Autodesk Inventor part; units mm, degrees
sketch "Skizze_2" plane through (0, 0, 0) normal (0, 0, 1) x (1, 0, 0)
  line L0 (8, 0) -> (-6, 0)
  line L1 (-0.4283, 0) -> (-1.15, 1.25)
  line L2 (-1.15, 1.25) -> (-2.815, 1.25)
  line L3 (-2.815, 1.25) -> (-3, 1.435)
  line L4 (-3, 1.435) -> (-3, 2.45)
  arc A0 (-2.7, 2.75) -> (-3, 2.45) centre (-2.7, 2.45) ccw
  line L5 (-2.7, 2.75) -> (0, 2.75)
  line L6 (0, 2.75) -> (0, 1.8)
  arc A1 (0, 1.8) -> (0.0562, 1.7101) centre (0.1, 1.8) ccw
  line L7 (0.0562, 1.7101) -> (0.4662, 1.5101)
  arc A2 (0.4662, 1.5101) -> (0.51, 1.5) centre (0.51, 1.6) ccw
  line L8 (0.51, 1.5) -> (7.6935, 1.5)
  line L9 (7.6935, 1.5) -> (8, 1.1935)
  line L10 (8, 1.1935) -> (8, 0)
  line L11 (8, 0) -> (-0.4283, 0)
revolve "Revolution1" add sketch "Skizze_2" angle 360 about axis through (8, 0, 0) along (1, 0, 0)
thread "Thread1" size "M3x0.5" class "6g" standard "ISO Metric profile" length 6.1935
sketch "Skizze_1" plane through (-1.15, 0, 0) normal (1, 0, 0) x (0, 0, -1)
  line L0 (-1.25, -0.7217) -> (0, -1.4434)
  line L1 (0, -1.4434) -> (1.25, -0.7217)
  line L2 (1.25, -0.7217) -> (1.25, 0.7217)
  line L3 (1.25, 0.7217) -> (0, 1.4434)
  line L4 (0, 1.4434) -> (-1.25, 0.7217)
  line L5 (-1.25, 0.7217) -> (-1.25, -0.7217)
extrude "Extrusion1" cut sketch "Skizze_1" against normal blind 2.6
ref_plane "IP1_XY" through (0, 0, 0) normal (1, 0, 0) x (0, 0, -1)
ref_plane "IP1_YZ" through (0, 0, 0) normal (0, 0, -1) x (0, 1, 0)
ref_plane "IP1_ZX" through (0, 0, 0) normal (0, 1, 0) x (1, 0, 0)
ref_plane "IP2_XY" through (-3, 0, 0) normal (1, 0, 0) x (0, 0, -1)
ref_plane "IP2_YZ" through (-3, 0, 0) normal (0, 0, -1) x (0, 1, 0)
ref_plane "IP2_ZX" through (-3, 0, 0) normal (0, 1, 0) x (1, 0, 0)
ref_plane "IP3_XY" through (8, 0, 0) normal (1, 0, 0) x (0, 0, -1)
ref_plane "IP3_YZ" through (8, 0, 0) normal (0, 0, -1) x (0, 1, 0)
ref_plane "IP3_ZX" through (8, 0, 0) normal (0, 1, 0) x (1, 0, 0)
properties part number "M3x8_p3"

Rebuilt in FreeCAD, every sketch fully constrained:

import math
import FreeCAD as App
import Part
import Sketcher

V = App.Vector
Q = App.Units.Quantity

doc = App.newDocument("Part")
body = doc.addObject("PartDesign::Body", "Body")

sketch1 = body.newObject("Sketcher::SketchObject", "Sketch")
sketch1.AttachmentSupport = (doc.getObject("XY_Plane"), [""])
sketch1.MapMode = "FlatFace"
sketch1.addGeometry([
    Part.LineSegment(V(-0.4283, 0, 0), V(8, 0, 0)),
    Part.LineSegment(V(8, 0, 0), V(8, 1.1935, 0)),
    Part.LineSegment(V(8, 1.1935, 0), V(7.6935, 1.5, 0)),
    Part.LineSegment(V(7.6935, 1.5, 0), V(0.51, 1.5, 0)),
    Part.ArcOfCircle(Part.Circle(V(0.51, 1.6, 0), V(0, 0, 1), 0.100002), math.radians(-115.975715), math.radians(-90)),
    Part.LineSegment(V(0.4662, 1.5101, 0), V(0.0562, 1.7101, 0)),
    Part.ArcOfCircle(Part.Circle(V(0.1, 1.8, 0), V(0, 0, 1), 0.1), math.radians(180), math.radians(244.024285)),
    Part.LineSegment(V(0, 1.8, 0), V(0, 2.75, 0)),
    Part.LineSegment(V(0, 2.75, 0), V(-2.7, 2.75, 0)),
    Part.ArcOfCircle(Part.Circle(V(-2.7, 2.45, 0), V(0, 0, 1), 0.3), math.radians(90), math.radians(180)),
    Part.LineSegment(V(-3, 2.45, 0), V(-3, 1.435, 0)),
    Part.LineSegment(V(-3, 1.435, 0), V(-2.815, 1.25, 0)),
    Part.LineSegment(V(-2.815, 1.25, 0), V(-1.15, 1.25, 0)),
    Part.LineSegment(V(-1.15, 1.25, 0), V(-0.4283, 0, 0)),
], False)
sketch1.addConstraint([
    Sketcher.Constraint("Coincident", 0, 2, 1, 1),
    Sketcher.Constraint("Coincident", 1, 2, 2, 1),
    Sketcher.Constraint("Coincident", 2, 2, 3, 1),
    Sketcher.Constraint("Tangent", 3, 2, 4, 2),
    Sketcher.Constraint("Tangent", 4, 1, 5, 1),
    Sketcher.Constraint("Tangent", 5, 2, 6, 2),
    Sketcher.Constraint("Tangent", 6, 1, 7, 1),
    Sketcher.Constraint("Coincident", 7, 2, 8, 1),
    Sketcher.Constraint("Tangent", 8, 2, 9, 1),
    Sketcher.Constraint("Tangent", 9, 2, 10, 1),
    Sketcher.Constraint("Coincident", 10, 2, 11, 1),
    Sketcher.Constraint("Coincident", 11, 2, 12, 1),
    Sketcher.Constraint("Coincident", 12, 2, 13, 1),
    Sketcher.Constraint("Coincident", 13, 2, 0, 1),
    Sketcher.Constraint("Horizontal", 0),
    Sketcher.Constraint("Vertical", 1),
    Sketcher.Constraint("Horizontal", 3),
    Sketcher.Constraint("Vertical", 7),
    Sketcher.Constraint("Horizontal", 8),
    Sketcher.Constraint("Vertical", 10),
    Sketcher.Constraint("Horizontal", 12),
    Sketcher.Constraint("Equal", 4, 6),
    Sketcher.Constraint("PointOnObject", 0, 2, -1),
    Sketcher.Constraint("PointOnObject", 6, 1, -2),
    Sketcher.Constraint("Parallel", 2, 11),
    Sketcher.Constraint("Radius", 4, 0.1),
    Sketcher.Constraint("Radius", 9, 0.3),
    Sketcher.Constraint("Angle", 2, Q("135 deg")),
    Sketcher.Constraint("Angle", 13, Q("-59.9996 deg")),
    Sketcher.Constraint("DistanceX", 8, 2, 8, 1, 2.7),
    Sketcher.Constraint("DistanceX", -1, 1, 0, 2, 8.0),
    Sketcher.Constraint("DistanceY", 7, 1, 7, 2, 0.95),
    Sketcher.Constraint("DistanceY", -1, 1, 4, 3, 1.6),
    Sketcher.Constraint("DistanceY", -1, 1, 6, 3, 1.8),
    Sketcher.Constraint("DistanceY", 11, 2, 9, 3, 1.2),
    Sketcher.Constraint("DistanceX", 12, 1, 12, 2, 1.665),
    Sketcher.Constraint("DistanceY", 10, 2, 10, 1, 1.015),
    Sketcher.Constraint("DistanceX", -1, 1, 4, 3, 0.51),
    Sketcher.Constraint("DistanceX", 3, 2, 3, 1, 7.1835),
])
revolution = body.newObject("PartDesign::Revolution", "Revolution")
revolution.Profile = sketch1
revolution.ReferenceAxis = (sketch1, ["H_Axis"])
revolution.Angle = 360

sketch2 = body.newObject("Sketcher::SketchObject", "Sketch001")
sketch2.AttachmentSupport = (doc.getObject("YZ_Plane"), [""])
sketch2.MapMode = "FlatFace"
sketch2.AttachmentOffset = App.Placement(V(0, 0, -1.15), App.Rotation())
sketch2.addGeometry([
    Part.LineSegment(V(0.7217, 1.25, 0), V(-0.7217, 1.25, 0)),
    Part.LineSegment(V(-0.7217, 1.25, 0), V(-1.4434, 0, 0)),
    Part.LineSegment(V(-1.4434, 0, 0), V(-0.7217, -1.25, 0)),
    Part.LineSegment(V(-0.7217, -1.25, 0), V(0.7217, -1.25, 0)),
    Part.LineSegment(V(0.7217, -1.25, 0), V(1.4434, 0, 0)),
    Part.LineSegment(V(1.4434, 0, 0), V(0.7217, 1.25, 0)),
], False)
sketch2.addConstraint([
    Sketcher.Constraint("Coincident", 0, 2, 1, 1),
    Sketcher.Constraint("Coincident", 1, 2, 2, 1),
    Sketcher.Constraint("Coincident", 2, 2, 3, 1),
    Sketcher.Constraint("Coincident", 3, 2, 4, 1),
    Sketcher.Constraint("Coincident", 4, 2, 5, 1),
    Sketcher.Constraint("Coincident", 5, 2, 0, 1),
    Sketcher.Constraint("Horizontal", 0),
    Sketcher.Constraint("Horizontal", 3),
    Sketcher.Constraint("Symmetric", 0, 2, 3, 2, -1, 1),
    Sketcher.Constraint("Symmetric", 1, 2, 4, 2, -1, 1),
    Sketcher.Constraint("PointOnObject", 1, 2, -1),
    Sketcher.Constraint("Parallel", 2, 5),
    Sketcher.Constraint("Vertical", 0, 2, 2, 2),
    Sketcher.Constraint("Angle", 1, Q("-120.0004 deg")),
    Sketcher.Constraint("DistanceY", 2, 2, 0, 2, 2.5),
    Sketcher.Constraint("DistanceX", 0, 2, 0, 1, 1.4434),
])
pocket1 = body.newObject("PartDesign::Pocket", "Pocket")
pocket1.Profile = sketch2
pocket1.Length = 2.6

doc.recompute()
